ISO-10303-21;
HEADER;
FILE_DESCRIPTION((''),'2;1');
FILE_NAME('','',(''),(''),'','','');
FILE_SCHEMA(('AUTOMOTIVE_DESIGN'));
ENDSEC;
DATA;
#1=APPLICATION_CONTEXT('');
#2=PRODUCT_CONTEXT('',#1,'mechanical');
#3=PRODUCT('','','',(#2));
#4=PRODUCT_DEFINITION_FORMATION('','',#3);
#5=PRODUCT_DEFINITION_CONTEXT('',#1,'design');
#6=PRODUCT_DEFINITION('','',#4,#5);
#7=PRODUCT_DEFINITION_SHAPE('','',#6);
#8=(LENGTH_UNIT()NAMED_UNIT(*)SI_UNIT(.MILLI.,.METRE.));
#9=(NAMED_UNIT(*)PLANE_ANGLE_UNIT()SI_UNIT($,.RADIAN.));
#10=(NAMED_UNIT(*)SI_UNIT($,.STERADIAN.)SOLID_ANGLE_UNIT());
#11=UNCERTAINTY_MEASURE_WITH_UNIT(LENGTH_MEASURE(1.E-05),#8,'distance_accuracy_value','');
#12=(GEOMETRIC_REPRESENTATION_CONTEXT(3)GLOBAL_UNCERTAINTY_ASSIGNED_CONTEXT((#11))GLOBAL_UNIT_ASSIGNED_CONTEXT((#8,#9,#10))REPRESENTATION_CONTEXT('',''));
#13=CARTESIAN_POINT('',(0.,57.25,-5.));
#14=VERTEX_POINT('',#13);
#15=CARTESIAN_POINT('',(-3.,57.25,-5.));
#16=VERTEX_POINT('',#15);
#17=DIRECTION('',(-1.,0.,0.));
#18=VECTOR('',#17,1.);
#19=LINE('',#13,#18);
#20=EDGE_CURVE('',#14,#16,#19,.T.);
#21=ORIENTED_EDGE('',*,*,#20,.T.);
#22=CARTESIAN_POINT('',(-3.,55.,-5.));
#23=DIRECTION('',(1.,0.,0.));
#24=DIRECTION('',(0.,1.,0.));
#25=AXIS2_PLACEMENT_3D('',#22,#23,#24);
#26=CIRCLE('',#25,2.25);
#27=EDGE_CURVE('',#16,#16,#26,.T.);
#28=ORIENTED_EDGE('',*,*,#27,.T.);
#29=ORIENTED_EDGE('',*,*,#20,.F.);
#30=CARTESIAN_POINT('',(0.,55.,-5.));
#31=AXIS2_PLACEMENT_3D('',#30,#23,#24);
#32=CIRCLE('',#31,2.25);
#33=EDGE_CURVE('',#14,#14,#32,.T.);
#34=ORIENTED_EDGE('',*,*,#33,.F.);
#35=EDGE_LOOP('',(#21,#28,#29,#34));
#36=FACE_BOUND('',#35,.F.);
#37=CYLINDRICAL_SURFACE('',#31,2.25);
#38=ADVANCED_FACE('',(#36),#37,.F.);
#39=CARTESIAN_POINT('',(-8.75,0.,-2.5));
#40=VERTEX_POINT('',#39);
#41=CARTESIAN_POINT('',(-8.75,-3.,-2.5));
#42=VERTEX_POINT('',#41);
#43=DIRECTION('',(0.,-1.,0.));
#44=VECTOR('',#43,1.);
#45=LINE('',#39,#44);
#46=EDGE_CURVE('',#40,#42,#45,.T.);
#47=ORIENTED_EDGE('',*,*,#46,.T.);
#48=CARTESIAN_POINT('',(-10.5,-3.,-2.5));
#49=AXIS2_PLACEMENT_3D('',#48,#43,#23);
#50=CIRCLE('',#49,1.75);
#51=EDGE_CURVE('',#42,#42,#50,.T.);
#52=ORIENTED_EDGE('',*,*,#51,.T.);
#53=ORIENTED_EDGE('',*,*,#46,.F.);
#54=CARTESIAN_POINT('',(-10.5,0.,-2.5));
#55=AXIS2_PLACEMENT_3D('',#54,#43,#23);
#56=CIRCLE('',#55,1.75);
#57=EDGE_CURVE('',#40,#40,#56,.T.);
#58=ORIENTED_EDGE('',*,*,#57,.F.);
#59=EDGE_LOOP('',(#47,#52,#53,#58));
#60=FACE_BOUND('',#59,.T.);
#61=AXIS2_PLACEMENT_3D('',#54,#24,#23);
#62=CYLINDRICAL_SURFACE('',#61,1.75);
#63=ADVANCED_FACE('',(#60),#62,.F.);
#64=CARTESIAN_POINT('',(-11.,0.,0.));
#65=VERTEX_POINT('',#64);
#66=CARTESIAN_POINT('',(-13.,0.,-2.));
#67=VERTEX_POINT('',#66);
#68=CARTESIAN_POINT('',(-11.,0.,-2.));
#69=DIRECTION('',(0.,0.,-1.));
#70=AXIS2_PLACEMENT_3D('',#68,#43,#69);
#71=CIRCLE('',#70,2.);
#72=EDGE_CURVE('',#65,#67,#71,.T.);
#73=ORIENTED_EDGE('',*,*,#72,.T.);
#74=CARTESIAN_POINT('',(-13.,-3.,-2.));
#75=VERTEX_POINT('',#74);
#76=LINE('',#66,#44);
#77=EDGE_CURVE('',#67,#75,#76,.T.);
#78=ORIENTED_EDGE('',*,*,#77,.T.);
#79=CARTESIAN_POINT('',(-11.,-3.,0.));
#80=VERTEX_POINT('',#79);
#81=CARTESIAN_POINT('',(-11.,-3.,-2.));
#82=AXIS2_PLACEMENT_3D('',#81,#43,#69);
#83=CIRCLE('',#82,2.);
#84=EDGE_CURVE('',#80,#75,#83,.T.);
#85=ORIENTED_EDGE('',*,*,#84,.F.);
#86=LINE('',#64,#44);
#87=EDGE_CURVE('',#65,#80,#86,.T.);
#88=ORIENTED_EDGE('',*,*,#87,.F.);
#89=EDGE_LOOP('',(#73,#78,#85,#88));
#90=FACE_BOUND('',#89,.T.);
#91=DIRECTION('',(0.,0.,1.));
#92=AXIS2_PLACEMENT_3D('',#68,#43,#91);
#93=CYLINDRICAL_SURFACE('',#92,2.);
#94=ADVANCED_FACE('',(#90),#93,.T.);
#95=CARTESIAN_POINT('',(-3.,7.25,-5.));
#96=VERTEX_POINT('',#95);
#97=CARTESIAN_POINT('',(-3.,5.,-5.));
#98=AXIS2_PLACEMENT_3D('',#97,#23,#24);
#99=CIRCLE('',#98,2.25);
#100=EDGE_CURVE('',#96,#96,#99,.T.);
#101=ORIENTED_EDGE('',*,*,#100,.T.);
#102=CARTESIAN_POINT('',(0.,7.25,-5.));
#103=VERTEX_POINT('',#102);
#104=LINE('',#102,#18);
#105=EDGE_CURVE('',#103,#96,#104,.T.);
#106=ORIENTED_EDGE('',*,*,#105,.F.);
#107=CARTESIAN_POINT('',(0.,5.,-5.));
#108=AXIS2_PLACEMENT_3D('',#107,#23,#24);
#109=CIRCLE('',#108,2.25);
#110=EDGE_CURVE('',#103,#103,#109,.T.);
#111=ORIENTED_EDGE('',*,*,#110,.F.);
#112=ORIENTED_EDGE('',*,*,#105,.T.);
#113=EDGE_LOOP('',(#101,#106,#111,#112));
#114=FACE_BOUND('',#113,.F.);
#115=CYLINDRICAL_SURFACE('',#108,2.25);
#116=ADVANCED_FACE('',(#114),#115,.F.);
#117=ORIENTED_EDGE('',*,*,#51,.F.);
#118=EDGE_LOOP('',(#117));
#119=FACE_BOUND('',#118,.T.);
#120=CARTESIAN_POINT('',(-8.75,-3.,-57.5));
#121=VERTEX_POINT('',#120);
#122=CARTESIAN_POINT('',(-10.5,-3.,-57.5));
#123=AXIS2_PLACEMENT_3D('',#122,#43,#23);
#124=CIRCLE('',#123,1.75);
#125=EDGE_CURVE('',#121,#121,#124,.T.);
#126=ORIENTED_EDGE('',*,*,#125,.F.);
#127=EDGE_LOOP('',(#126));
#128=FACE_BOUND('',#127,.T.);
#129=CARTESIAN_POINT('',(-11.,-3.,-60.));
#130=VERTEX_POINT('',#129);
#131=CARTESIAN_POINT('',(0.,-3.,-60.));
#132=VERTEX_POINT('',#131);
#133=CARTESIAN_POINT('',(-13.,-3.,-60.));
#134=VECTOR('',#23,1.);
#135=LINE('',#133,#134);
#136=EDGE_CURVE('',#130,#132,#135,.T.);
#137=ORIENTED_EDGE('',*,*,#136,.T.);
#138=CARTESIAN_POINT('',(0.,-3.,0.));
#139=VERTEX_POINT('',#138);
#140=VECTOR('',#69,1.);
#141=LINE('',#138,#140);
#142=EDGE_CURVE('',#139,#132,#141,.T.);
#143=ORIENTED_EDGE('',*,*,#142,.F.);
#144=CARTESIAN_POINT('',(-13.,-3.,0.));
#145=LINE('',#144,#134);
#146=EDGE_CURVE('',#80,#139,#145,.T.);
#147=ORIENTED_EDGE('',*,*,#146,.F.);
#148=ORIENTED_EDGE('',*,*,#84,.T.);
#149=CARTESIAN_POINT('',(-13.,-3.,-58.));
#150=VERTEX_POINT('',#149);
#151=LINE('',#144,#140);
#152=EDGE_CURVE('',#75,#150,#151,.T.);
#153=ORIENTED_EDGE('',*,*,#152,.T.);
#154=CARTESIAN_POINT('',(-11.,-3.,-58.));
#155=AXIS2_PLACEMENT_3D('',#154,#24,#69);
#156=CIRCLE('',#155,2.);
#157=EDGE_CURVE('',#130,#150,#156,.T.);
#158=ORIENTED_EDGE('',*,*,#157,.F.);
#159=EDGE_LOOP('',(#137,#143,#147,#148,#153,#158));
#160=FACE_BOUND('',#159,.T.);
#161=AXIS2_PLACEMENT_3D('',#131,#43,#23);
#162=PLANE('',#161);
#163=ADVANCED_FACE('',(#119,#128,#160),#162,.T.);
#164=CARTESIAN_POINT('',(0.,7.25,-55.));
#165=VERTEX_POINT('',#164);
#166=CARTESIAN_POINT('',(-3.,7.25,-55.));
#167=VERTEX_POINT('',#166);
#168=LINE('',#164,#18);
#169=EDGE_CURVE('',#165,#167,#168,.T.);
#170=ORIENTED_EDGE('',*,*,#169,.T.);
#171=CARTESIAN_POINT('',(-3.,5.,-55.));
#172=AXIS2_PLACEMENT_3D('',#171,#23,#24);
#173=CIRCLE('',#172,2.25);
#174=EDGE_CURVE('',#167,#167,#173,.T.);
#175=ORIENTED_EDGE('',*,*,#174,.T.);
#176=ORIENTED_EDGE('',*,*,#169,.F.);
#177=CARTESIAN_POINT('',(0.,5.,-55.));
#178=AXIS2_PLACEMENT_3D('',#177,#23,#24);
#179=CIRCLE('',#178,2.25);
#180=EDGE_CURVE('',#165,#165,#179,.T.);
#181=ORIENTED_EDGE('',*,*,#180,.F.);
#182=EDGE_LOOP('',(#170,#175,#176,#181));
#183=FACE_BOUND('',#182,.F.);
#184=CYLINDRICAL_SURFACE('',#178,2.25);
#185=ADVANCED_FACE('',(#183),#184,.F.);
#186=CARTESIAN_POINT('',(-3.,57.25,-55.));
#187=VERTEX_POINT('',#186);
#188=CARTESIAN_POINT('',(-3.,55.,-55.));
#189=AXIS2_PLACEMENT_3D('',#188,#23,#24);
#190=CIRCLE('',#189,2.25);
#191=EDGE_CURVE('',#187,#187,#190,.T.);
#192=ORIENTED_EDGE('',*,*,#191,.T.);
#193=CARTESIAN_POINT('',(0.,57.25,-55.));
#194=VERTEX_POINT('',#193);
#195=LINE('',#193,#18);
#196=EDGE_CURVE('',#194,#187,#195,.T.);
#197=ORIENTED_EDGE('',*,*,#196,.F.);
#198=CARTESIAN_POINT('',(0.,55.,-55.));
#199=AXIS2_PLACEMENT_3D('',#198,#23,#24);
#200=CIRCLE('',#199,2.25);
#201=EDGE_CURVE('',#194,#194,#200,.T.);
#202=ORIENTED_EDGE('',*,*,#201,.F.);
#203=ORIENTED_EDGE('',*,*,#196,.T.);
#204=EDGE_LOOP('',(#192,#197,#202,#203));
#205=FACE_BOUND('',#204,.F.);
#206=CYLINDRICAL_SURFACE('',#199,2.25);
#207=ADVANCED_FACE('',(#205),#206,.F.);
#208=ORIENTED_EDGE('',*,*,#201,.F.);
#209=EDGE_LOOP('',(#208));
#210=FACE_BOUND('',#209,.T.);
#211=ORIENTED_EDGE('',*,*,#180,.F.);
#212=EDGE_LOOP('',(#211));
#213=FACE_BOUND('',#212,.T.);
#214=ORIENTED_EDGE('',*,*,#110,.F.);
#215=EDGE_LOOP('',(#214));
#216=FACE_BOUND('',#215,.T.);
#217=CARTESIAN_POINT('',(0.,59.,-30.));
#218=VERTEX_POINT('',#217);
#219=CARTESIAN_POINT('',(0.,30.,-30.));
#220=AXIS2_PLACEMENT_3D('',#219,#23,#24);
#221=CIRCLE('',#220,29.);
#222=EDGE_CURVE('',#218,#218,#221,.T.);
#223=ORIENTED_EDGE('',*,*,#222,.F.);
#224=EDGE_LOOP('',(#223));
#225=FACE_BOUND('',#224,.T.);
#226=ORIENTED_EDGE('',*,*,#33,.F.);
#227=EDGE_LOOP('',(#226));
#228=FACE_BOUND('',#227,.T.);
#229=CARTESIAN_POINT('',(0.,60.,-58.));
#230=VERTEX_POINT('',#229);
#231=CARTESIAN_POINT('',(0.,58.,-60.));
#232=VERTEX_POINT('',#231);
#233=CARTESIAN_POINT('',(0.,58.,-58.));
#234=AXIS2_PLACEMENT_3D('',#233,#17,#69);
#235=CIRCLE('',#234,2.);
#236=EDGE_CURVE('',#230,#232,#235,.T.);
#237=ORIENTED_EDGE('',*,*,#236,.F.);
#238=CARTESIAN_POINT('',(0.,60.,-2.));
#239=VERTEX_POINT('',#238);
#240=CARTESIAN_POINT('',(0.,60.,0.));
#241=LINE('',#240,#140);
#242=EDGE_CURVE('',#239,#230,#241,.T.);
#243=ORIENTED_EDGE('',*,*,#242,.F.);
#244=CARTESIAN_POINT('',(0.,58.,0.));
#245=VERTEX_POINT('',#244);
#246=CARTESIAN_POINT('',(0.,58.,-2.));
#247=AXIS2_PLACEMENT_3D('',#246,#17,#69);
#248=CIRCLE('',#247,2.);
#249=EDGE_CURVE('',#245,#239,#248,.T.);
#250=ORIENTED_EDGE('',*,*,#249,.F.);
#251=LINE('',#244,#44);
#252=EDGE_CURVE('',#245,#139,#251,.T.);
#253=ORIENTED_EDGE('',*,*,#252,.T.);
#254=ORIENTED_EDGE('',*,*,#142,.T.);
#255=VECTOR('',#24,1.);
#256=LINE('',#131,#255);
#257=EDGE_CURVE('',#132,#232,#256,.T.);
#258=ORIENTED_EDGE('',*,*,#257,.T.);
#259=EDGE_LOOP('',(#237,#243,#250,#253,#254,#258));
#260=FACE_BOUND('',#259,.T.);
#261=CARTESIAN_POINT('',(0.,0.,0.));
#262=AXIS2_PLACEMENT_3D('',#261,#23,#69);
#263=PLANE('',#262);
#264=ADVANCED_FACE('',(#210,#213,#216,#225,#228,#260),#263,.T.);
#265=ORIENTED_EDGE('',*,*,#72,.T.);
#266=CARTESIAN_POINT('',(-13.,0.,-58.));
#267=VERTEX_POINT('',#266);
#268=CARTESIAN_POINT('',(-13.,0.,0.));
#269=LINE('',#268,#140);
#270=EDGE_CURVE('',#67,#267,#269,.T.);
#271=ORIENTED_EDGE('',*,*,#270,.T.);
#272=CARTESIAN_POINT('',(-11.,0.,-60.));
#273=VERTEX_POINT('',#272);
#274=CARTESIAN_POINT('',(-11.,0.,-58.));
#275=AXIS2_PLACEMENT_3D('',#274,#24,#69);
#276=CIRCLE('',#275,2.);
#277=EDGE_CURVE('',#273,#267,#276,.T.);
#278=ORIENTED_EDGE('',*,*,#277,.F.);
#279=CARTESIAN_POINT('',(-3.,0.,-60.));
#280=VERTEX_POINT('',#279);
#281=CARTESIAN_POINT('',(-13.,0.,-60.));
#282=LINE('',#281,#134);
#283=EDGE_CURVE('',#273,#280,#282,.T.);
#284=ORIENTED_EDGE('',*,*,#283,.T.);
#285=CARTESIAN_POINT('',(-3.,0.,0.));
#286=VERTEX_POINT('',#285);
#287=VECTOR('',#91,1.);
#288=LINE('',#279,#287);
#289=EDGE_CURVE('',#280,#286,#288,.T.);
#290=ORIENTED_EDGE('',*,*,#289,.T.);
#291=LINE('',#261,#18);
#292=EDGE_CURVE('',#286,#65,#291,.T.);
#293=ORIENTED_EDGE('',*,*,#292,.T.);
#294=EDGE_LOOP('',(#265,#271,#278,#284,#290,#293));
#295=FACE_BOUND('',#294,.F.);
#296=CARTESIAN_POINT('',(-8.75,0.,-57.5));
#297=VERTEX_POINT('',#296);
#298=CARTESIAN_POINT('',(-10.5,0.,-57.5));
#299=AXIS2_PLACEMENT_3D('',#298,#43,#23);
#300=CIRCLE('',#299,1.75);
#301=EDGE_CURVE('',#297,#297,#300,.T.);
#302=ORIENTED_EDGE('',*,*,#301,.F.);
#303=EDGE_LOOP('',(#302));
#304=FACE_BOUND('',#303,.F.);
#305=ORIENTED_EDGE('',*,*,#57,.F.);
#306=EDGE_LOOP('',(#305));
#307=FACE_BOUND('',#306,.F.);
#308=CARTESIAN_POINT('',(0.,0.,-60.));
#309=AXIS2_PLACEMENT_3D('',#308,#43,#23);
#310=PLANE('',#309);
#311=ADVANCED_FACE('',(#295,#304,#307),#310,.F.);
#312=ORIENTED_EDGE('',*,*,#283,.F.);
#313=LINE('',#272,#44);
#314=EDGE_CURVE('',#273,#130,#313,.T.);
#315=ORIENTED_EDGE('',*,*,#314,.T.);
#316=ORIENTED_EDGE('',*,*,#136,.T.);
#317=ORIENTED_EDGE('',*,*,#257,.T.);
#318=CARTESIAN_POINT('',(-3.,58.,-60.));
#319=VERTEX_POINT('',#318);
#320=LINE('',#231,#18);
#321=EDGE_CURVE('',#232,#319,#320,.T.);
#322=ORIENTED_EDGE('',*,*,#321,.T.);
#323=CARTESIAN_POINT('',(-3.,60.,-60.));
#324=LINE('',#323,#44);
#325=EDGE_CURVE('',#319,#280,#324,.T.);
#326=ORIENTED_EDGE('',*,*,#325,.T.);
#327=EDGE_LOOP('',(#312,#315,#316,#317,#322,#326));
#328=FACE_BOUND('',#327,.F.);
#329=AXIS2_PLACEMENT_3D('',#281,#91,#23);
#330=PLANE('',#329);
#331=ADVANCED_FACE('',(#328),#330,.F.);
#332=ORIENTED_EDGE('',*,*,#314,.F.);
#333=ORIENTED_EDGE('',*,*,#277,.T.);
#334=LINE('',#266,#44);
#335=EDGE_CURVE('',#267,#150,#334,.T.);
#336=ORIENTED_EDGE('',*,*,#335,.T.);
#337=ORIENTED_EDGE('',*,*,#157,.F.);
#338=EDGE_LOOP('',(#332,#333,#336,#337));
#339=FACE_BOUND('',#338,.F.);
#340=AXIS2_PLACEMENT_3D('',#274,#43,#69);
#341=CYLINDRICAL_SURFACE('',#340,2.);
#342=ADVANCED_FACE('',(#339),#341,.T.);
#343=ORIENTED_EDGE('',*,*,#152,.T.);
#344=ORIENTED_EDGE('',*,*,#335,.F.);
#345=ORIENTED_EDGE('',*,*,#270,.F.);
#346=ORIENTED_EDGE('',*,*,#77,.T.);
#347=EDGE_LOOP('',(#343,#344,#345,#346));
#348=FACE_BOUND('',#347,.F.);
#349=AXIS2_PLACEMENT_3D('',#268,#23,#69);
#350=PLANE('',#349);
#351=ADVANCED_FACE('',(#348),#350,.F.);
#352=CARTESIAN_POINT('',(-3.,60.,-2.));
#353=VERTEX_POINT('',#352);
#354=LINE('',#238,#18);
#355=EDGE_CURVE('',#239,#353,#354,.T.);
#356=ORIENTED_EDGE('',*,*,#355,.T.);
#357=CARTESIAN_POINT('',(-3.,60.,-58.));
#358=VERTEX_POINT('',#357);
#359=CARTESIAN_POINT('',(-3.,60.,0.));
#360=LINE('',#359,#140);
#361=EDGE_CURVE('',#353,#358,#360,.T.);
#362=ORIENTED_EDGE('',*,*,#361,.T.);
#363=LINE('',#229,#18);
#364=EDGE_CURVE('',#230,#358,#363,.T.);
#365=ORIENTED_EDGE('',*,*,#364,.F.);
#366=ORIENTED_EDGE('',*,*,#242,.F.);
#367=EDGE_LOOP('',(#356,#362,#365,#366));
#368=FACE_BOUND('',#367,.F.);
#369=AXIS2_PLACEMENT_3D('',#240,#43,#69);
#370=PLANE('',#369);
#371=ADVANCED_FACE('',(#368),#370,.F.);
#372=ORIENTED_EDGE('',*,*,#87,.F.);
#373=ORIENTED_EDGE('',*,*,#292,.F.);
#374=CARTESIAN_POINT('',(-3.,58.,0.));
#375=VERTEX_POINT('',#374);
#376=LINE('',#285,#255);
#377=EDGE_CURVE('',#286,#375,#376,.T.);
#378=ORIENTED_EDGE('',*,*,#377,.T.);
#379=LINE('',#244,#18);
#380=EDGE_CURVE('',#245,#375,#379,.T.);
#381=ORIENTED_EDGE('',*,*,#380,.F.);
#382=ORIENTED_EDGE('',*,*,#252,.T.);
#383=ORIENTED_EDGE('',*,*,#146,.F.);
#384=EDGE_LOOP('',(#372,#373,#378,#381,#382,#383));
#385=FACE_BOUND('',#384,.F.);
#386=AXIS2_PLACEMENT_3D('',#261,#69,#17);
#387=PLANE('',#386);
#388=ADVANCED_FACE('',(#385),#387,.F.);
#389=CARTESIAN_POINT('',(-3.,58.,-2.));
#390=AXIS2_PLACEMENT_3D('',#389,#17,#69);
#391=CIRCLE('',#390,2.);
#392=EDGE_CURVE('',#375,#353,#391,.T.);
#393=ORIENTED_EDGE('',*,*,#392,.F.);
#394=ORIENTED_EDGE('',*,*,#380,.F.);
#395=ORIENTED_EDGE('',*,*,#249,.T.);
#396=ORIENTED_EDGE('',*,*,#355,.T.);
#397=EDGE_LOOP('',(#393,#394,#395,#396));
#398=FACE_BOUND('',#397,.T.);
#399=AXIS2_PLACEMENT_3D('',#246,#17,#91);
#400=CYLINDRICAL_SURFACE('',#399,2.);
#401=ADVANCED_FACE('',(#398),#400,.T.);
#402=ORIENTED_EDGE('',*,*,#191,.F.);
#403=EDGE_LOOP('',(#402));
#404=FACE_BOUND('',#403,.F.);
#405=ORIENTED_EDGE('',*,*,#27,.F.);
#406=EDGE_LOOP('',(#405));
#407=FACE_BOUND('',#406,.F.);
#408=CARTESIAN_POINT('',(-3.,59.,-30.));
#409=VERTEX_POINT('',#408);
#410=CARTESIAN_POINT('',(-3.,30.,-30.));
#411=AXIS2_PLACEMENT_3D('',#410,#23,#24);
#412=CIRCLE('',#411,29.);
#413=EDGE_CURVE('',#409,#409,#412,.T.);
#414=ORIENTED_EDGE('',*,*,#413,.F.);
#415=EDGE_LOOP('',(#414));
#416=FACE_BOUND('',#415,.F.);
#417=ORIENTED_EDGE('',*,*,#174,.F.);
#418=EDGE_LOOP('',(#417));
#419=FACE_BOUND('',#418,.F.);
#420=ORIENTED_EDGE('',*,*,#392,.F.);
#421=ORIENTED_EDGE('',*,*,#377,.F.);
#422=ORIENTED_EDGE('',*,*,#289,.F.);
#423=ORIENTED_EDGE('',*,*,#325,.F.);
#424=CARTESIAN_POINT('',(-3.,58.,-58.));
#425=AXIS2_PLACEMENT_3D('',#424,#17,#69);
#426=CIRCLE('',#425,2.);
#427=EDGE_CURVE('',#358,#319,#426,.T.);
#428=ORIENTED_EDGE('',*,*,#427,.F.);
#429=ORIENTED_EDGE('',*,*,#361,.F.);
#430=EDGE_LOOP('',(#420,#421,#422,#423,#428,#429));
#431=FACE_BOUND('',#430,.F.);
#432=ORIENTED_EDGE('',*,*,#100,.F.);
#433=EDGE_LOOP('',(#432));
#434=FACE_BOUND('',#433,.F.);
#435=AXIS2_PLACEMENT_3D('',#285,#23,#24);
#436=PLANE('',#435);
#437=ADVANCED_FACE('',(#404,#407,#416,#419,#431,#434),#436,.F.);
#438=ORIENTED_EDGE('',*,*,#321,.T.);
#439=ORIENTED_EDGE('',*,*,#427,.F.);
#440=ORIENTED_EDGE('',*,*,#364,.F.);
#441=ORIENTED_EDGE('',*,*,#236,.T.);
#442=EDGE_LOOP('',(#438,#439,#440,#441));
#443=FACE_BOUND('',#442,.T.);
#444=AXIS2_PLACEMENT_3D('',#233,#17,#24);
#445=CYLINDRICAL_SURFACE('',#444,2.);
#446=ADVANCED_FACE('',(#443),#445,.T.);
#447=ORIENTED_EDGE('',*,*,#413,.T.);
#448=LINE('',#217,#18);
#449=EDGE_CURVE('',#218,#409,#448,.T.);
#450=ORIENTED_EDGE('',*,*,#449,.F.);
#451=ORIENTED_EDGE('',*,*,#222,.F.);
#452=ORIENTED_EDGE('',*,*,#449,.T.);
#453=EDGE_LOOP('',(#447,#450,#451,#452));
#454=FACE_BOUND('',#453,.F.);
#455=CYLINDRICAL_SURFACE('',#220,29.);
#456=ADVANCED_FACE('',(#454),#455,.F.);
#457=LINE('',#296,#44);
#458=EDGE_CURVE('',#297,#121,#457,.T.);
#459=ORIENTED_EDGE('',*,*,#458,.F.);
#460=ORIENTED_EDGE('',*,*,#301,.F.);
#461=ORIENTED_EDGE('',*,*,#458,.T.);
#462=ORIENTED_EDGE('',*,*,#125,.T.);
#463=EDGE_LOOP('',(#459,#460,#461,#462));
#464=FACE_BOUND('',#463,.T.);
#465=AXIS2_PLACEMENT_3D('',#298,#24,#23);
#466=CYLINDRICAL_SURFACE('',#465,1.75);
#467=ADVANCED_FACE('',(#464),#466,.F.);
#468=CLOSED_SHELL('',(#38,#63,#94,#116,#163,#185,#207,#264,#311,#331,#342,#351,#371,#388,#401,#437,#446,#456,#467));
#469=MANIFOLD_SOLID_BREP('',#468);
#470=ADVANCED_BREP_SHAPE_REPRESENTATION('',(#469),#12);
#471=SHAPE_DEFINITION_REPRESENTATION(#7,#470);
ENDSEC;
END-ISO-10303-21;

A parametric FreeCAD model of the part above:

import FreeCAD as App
import Part
import Sketcher
Q = App.Units.Quantity


def edges_at(feature, points):
    """Names of the edges that pass closest to the given points."""
    edges = feature.Shape.Edges
    near = lambda p: min(range(len(edges)), key=lambda i: edges[i].distToShape(Part.Vertex(*p))[0])
    return sorted({f"Edge{near(p) + 1}" for p in points})


def add_polygon(sketch, points):
    """Adds a closed chain of lines whose ends are joined by coincident constraints."""
    first, n = sketch.GeometryCount, len(points)
    for a, b in zip(points, points[1:] + points[:1]):
        sketch.addGeometry(Part.LineSegment(App.Vector(*a, 0), App.Vector(*b, 0)), False)
    for i in range(n):
        sketch.addConstraint(Sketcher.Constraint("Coincident", first + i, 2, first + (i + 1) % n, 1))

doc = App.newDocument("Part")
body = doc.addObject("PartDesign::Body", "Body")

# Sketch on YZ plane
sketch1 = doc.addObject("Sketcher::SketchObject", "Sketch")
body.addObject(sketch1)
sketch1.AttachmentSupport = (doc.YZ_Plane, [""])
sketch1.MapMode = "FlatFace"
add_polygon(sketch1, [(60, 0), (0, 0), (0, -60), (60, -60)])  # lines 0-3
sketch1.addGeometry(Part.Circle(App.Vector(5, -55, 0), App.Vector(0, 0, 1), 2.2), False)  # 4
sketch1.addGeometry(Part.Circle(App.Vector(55, -55, 0), App.Vector(0, 0, 1), 2.2), False)  # 5
sketch1.addGeometry(Part.Circle(App.Vector(5, -5, 0), App.Vector(0, 0, 1), 2.2), False)  # 6
sketch1.addGeometry(Part.Circle(App.Vector(30, -30, 0), App.Vector(0, 0, 1), 29), False)  # 7
sketch1.addGeometry(Part.Circle(App.Vector(55, -5, 0), App.Vector(0, 0, 1), 2.2), False)  # 8
sketch1.addConstraint([
    Sketcher.Constraint("Horizontal", 0),
    Sketcher.Constraint("Vertical", 1),
    Sketcher.Constraint("Horizontal", 2),
    Sketcher.Constraint("Vertical", 3),
    Sketcher.Constraint("Coincident", 0, 2, -1, 1),
    Sketcher.Constraint("Equal", 4, 5),
    Sketcher.Constraint("Equal", 5, 6),
    Sketcher.Constraint("Equal", 6, 8),
    Sketcher.Constraint("Horizontal", 4, 3, 5, 3),
    Sketcher.Constraint("Horizontal", 6, 3, 8, 3),
    Sketcher.Constraint("Vertical", 4, 3, 6, 3),
    Sketcher.Constraint("Vertical", 5, 3, 8, 3),
    Sketcher.Constraint("Equal", 2, 1),
    Sketcher.Constraint("Diameter", 7, Q("58 mm")),
    Sketcher.Constraint("Diameter", 4, Q("4.5 mm")),
    Sketcher.Constraint("DistanceX", 0, 2, 0, 1, Q("60 mm")),
    Sketcher.Constraint("DistanceX", -1, 1, 4, 3, Q("5 mm")),
    Sketcher.Constraint("DistanceY", 6, 3, -1, 1, Q("5 mm")),
    Sketcher.Constraint("DistanceY", 1, 2, 4, 3, Q("5 mm")),
    Sketcher.Constraint("DistanceX", 5, 3, 2, 2, Q("5 mm")),
    Sketcher.Constraint("DistanceX", -1, 1, 7, 3, Q("30 mm")),
    Sketcher.Constraint("DistanceY", 7, 3, -1, 1, Q("30 mm")),
])
pad1 = doc.addObject("PartDesign::Pad", "Pad")
body.addObject(pad1)
pad1.Profile = sketch1
pad1.Length = 3
pad1.Reversed = True
doc.recompute()

fillet = doc.addObject("PartDesign::Fillet", "Fillet")
body.addObject(fillet)
fillet.Base = (pad1, edges_at(pad1, [(-1.5, 60, -60), (-1.5, 60, 0)]))
fillet.Radius = 2

# Sketch on XZ plane
sketch2 = doc.addObject("Sketcher::SketchObject", "Sketch001")
body.addObject(sketch2)
sketch2.AttachmentSupport = (doc.XZ_Plane, [""])
sketch2.MapMode = "FlatFace"
add_polygon(sketch2, [(0, -60), (0, 0), (-13, 0), (-13, -60)])  # lines 0-3
sketch2.addGeometry(Part.Circle(App.Vector(-10.5, -57.5, 0), App.Vector(0, 0, 1), 1.8), False)  # 4
sketch2.addGeometry(Part.Circle(App.Vector(-10.5, -2.5, 0), App.Vector(0, 0, 1), 1.8), False)  # 5
sketch2.addConstraint([
    Sketcher.Constraint("Vertical", 0),
    Sketcher.Constraint("Horizontal", 1),
    Sketcher.Constraint("Vertical", 2),
    Sketcher.Constraint("Horizontal", 3),
    Sketcher.Constraint("Coincident", 0, 2, -1, 1),
    Sketcher.Constraint("Equal", 4, 5),
    Sketcher.Constraint("Vertical", 4, 3, 5, 3),
    Sketcher.Constraint("Diameter", 4, Q("3.5 mm")),
    Sketcher.Constraint("DistanceX", 1, 2, 1, 1, Q("13 mm")),
    Sketcher.Constraint("DistanceY", 5, 3, -1, 1, Q("2.5 mm")),
    Sketcher.Constraint("DistanceX", 1, 2, 5, 3, Q("2.5 mm")),
    Sketcher.Constraint("DistanceY", 2, 2, 4, 3, Q("2.5 mm")),
    Sketcher.Constraint("DistanceY", 0, 1, 0, 2, Q("60 mm")),
])
pad2 = doc.addObject("PartDesign::Pad", "Pad001")
body.addObject(pad2)
pad2.Profile = sketch2
pad2.Length = 3
doc.recompute()

fillet2 = doc.addObject("PartDesign::Fillet", "Fillet001")
body.addObject(fillet2)
fillet2.Base = (pad2, edges_at(pad2, [(-13, -1.5, 0), (-13, -1.5, -60)]))
fillet2.Radius = 2

doc.recompute()
